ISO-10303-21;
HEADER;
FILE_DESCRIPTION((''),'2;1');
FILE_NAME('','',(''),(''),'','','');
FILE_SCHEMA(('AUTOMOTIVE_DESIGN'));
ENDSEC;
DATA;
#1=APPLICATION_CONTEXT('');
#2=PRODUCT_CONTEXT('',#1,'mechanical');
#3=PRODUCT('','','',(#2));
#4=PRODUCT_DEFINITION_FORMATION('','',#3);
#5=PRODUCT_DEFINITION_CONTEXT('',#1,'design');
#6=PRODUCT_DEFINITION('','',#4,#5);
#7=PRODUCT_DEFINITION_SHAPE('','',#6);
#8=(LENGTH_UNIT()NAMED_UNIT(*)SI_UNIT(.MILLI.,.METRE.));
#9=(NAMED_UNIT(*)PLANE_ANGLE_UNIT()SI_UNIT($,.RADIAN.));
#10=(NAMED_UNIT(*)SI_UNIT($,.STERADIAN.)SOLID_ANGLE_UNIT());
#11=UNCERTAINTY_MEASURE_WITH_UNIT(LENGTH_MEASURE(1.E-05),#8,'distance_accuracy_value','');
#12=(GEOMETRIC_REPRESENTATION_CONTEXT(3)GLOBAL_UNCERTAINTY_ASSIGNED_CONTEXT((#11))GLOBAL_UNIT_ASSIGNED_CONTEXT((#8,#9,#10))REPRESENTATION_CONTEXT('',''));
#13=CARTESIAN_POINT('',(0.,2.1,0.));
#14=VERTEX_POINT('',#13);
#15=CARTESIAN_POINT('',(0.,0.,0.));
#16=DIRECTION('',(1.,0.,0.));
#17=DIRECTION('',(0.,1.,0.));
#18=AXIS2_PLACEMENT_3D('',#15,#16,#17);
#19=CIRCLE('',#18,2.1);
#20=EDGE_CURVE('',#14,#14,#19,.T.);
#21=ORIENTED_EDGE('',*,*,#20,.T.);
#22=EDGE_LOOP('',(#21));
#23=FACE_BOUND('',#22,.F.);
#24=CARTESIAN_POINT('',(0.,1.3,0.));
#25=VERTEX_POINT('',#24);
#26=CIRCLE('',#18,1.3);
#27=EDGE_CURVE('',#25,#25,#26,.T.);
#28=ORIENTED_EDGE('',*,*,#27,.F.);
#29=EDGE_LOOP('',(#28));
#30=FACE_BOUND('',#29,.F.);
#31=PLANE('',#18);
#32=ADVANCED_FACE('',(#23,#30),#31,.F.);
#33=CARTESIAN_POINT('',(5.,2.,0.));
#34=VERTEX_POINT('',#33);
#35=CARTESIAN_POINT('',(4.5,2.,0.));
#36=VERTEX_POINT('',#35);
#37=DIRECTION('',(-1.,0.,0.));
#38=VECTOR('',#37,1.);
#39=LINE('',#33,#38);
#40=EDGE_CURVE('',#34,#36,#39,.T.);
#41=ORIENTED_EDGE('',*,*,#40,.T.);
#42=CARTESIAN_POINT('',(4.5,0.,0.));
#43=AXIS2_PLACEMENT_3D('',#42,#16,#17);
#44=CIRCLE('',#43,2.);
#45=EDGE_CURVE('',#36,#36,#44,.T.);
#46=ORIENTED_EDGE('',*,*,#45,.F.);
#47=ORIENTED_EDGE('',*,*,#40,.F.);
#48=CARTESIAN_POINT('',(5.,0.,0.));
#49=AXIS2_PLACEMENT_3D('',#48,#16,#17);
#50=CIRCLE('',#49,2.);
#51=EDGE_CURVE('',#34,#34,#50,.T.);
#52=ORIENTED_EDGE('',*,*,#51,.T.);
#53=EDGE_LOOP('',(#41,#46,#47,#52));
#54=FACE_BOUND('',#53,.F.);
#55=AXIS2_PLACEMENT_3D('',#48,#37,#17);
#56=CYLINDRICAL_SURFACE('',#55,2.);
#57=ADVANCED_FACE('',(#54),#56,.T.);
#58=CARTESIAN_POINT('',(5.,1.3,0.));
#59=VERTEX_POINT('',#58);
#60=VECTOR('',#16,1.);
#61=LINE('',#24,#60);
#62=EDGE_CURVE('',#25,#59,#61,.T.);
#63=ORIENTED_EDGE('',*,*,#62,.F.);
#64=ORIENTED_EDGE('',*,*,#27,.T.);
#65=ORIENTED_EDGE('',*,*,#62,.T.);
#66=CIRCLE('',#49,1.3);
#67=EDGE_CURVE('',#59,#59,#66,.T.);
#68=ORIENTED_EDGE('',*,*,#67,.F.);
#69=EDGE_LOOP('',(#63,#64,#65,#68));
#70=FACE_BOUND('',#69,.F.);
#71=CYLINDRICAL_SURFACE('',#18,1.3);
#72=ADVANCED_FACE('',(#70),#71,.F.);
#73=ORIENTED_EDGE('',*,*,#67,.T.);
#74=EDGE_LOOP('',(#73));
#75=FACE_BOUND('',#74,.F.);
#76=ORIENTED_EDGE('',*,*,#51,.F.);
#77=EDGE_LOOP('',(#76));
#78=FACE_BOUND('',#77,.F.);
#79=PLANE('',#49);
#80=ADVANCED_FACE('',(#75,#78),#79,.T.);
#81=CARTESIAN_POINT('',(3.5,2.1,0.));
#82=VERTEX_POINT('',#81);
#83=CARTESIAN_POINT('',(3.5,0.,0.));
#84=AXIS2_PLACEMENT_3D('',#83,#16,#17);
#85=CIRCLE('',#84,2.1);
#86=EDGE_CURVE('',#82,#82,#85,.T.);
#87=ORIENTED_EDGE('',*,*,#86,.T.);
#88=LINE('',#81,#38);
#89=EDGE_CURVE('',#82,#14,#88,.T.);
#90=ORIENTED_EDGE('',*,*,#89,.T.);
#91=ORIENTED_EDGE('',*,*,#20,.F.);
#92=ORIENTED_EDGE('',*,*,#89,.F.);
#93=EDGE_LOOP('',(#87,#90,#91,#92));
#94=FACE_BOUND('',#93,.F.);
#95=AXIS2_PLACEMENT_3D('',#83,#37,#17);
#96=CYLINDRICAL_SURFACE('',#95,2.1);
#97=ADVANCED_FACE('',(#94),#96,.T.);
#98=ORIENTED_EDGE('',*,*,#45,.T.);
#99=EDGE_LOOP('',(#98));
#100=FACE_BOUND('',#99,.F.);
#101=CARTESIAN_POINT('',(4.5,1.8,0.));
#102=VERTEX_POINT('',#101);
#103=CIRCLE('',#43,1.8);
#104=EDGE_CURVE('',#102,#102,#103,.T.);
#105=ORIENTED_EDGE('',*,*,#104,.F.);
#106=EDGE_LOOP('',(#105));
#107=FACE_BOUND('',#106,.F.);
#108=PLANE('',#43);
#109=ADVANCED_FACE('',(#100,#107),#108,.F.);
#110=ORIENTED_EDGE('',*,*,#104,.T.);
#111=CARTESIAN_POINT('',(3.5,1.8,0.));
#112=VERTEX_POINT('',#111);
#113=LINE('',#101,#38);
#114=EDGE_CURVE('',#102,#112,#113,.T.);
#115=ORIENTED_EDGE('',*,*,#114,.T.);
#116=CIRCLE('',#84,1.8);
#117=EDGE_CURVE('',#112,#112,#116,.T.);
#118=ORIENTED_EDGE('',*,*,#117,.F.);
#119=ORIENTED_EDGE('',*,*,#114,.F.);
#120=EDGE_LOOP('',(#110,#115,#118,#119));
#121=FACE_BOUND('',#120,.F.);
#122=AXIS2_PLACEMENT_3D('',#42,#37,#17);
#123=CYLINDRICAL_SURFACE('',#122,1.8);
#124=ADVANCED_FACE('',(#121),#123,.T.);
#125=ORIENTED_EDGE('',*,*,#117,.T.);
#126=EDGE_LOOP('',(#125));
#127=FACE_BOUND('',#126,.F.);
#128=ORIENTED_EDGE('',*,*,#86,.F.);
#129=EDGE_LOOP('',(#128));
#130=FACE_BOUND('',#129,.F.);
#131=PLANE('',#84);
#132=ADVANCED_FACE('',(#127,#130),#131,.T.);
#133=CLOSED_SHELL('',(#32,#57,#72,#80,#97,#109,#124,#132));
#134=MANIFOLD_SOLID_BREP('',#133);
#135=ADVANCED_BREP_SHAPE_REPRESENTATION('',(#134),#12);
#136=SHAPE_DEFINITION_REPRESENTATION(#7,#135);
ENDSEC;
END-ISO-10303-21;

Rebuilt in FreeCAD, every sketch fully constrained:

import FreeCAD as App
import Part
import Sketcher
from FreeCAD import Vector


def add_polygon(sketch, points):
    """Adds a closed chain of lines whose ends are joined by coincident constraints."""
    first, n = sketch.GeometryCount, len(points)
    for a, b in zip(points, points[1:] + points[:1]):
        sketch.addGeometry(Part.LineSegment(App.Vector(*a, 0), App.Vector(*b, 0)), False)
    for i in range(n):
        sketch.addConstraint(Sketcher.Constraint("Coincident", first + i, 2, first + (i + 1) % n, 1))

doc = App.newDocument("Part")
params = doc.addObject("Spreadsheet::Sheet", "Params")
for row, (alias, value) in enumerate([
    ("sketch1_width", "5 mm"),
    ("sketch1_width2", "0.5 mm"),
    ("sketch1_width3", "3.5 mm"),
    ("revolution_angle", "360 deg"),
], start=1):
    params.set(f"A{row}", alias)
    params.set(f"B{row}", "=" + value)
    params.setAlias(f"B{row}", alias)

body = doc.addObject("PartDesign::Body", "Body")

# Sketch on XY plane
sketch1 = body.newObject("Sketcher::SketchObject", "Sketch")
sketch1.AttachmentSupport = (doc.getObject("XY_Plane"), [""])
sketch1.MapMode = "FlatFace"
add_polygon(sketch1, [(0, 2.1), (0, 1.3), (5, 1.3), (5, 2), (4.5, 2), (4.5, 1.8), (3.5, 1.8), (3.5, 2.1)])  # lines 0-7
sketch1.addConstraint([
    Sketcher.Constraint("Vertical", 0),
    Sketcher.Constraint("Horizontal", 1),
    Sketcher.Constraint("Vertical", 2),
    Sketcher.Constraint("Horizontal", 3),
    Sketcher.Constraint("Vertical", 4),
    Sketcher.Constraint("Horizontal", 5),
    Sketcher.Constraint("Vertical", 6),
    Sketcher.Constraint("Horizontal", 7),
    Sketcher.Constraint("PointOnObject", 0, 2, -2),
    Sketcher.Constraint("DistanceX", 1, 1, 1, 2, 5.0),
    Sketcher.Constraint("DistanceX", 3, 2, 3, 1, 0.5),
    Sketcher.Constraint("DistanceX", 7, 2, 7, 1, 3.5),
    Sketcher.Constraint("DistanceY", -1, 1, 2, 2, 2.0),
    Sketcher.Constraint("DistanceY", -1, 1, 0, 2, 1.3),
    Sketcher.Constraint("DistanceY", -1, 1, 6, 2, 2.1),
    Sketcher.Constraint("DistanceY", 1, 2, 4, 2, 0.5),
])
sketch1.setExpression("Constraints[17]", "Params.sketch1_width")
sketch1.setExpression("Constraints[18]", "Params.sketch1_width2")
sketch1.setExpression("Constraints[19]", "Params.sketch1_width3")
revolution = body.newObject("PartDesign::Revolution", "Revolution")
revolution.Profile = sketch1
revolution.ReferenceAxis = (sketch1, ["H_Axis"])
revolution.setExpression("Angle", "Params.revolution_angle")

doc.recompute()
